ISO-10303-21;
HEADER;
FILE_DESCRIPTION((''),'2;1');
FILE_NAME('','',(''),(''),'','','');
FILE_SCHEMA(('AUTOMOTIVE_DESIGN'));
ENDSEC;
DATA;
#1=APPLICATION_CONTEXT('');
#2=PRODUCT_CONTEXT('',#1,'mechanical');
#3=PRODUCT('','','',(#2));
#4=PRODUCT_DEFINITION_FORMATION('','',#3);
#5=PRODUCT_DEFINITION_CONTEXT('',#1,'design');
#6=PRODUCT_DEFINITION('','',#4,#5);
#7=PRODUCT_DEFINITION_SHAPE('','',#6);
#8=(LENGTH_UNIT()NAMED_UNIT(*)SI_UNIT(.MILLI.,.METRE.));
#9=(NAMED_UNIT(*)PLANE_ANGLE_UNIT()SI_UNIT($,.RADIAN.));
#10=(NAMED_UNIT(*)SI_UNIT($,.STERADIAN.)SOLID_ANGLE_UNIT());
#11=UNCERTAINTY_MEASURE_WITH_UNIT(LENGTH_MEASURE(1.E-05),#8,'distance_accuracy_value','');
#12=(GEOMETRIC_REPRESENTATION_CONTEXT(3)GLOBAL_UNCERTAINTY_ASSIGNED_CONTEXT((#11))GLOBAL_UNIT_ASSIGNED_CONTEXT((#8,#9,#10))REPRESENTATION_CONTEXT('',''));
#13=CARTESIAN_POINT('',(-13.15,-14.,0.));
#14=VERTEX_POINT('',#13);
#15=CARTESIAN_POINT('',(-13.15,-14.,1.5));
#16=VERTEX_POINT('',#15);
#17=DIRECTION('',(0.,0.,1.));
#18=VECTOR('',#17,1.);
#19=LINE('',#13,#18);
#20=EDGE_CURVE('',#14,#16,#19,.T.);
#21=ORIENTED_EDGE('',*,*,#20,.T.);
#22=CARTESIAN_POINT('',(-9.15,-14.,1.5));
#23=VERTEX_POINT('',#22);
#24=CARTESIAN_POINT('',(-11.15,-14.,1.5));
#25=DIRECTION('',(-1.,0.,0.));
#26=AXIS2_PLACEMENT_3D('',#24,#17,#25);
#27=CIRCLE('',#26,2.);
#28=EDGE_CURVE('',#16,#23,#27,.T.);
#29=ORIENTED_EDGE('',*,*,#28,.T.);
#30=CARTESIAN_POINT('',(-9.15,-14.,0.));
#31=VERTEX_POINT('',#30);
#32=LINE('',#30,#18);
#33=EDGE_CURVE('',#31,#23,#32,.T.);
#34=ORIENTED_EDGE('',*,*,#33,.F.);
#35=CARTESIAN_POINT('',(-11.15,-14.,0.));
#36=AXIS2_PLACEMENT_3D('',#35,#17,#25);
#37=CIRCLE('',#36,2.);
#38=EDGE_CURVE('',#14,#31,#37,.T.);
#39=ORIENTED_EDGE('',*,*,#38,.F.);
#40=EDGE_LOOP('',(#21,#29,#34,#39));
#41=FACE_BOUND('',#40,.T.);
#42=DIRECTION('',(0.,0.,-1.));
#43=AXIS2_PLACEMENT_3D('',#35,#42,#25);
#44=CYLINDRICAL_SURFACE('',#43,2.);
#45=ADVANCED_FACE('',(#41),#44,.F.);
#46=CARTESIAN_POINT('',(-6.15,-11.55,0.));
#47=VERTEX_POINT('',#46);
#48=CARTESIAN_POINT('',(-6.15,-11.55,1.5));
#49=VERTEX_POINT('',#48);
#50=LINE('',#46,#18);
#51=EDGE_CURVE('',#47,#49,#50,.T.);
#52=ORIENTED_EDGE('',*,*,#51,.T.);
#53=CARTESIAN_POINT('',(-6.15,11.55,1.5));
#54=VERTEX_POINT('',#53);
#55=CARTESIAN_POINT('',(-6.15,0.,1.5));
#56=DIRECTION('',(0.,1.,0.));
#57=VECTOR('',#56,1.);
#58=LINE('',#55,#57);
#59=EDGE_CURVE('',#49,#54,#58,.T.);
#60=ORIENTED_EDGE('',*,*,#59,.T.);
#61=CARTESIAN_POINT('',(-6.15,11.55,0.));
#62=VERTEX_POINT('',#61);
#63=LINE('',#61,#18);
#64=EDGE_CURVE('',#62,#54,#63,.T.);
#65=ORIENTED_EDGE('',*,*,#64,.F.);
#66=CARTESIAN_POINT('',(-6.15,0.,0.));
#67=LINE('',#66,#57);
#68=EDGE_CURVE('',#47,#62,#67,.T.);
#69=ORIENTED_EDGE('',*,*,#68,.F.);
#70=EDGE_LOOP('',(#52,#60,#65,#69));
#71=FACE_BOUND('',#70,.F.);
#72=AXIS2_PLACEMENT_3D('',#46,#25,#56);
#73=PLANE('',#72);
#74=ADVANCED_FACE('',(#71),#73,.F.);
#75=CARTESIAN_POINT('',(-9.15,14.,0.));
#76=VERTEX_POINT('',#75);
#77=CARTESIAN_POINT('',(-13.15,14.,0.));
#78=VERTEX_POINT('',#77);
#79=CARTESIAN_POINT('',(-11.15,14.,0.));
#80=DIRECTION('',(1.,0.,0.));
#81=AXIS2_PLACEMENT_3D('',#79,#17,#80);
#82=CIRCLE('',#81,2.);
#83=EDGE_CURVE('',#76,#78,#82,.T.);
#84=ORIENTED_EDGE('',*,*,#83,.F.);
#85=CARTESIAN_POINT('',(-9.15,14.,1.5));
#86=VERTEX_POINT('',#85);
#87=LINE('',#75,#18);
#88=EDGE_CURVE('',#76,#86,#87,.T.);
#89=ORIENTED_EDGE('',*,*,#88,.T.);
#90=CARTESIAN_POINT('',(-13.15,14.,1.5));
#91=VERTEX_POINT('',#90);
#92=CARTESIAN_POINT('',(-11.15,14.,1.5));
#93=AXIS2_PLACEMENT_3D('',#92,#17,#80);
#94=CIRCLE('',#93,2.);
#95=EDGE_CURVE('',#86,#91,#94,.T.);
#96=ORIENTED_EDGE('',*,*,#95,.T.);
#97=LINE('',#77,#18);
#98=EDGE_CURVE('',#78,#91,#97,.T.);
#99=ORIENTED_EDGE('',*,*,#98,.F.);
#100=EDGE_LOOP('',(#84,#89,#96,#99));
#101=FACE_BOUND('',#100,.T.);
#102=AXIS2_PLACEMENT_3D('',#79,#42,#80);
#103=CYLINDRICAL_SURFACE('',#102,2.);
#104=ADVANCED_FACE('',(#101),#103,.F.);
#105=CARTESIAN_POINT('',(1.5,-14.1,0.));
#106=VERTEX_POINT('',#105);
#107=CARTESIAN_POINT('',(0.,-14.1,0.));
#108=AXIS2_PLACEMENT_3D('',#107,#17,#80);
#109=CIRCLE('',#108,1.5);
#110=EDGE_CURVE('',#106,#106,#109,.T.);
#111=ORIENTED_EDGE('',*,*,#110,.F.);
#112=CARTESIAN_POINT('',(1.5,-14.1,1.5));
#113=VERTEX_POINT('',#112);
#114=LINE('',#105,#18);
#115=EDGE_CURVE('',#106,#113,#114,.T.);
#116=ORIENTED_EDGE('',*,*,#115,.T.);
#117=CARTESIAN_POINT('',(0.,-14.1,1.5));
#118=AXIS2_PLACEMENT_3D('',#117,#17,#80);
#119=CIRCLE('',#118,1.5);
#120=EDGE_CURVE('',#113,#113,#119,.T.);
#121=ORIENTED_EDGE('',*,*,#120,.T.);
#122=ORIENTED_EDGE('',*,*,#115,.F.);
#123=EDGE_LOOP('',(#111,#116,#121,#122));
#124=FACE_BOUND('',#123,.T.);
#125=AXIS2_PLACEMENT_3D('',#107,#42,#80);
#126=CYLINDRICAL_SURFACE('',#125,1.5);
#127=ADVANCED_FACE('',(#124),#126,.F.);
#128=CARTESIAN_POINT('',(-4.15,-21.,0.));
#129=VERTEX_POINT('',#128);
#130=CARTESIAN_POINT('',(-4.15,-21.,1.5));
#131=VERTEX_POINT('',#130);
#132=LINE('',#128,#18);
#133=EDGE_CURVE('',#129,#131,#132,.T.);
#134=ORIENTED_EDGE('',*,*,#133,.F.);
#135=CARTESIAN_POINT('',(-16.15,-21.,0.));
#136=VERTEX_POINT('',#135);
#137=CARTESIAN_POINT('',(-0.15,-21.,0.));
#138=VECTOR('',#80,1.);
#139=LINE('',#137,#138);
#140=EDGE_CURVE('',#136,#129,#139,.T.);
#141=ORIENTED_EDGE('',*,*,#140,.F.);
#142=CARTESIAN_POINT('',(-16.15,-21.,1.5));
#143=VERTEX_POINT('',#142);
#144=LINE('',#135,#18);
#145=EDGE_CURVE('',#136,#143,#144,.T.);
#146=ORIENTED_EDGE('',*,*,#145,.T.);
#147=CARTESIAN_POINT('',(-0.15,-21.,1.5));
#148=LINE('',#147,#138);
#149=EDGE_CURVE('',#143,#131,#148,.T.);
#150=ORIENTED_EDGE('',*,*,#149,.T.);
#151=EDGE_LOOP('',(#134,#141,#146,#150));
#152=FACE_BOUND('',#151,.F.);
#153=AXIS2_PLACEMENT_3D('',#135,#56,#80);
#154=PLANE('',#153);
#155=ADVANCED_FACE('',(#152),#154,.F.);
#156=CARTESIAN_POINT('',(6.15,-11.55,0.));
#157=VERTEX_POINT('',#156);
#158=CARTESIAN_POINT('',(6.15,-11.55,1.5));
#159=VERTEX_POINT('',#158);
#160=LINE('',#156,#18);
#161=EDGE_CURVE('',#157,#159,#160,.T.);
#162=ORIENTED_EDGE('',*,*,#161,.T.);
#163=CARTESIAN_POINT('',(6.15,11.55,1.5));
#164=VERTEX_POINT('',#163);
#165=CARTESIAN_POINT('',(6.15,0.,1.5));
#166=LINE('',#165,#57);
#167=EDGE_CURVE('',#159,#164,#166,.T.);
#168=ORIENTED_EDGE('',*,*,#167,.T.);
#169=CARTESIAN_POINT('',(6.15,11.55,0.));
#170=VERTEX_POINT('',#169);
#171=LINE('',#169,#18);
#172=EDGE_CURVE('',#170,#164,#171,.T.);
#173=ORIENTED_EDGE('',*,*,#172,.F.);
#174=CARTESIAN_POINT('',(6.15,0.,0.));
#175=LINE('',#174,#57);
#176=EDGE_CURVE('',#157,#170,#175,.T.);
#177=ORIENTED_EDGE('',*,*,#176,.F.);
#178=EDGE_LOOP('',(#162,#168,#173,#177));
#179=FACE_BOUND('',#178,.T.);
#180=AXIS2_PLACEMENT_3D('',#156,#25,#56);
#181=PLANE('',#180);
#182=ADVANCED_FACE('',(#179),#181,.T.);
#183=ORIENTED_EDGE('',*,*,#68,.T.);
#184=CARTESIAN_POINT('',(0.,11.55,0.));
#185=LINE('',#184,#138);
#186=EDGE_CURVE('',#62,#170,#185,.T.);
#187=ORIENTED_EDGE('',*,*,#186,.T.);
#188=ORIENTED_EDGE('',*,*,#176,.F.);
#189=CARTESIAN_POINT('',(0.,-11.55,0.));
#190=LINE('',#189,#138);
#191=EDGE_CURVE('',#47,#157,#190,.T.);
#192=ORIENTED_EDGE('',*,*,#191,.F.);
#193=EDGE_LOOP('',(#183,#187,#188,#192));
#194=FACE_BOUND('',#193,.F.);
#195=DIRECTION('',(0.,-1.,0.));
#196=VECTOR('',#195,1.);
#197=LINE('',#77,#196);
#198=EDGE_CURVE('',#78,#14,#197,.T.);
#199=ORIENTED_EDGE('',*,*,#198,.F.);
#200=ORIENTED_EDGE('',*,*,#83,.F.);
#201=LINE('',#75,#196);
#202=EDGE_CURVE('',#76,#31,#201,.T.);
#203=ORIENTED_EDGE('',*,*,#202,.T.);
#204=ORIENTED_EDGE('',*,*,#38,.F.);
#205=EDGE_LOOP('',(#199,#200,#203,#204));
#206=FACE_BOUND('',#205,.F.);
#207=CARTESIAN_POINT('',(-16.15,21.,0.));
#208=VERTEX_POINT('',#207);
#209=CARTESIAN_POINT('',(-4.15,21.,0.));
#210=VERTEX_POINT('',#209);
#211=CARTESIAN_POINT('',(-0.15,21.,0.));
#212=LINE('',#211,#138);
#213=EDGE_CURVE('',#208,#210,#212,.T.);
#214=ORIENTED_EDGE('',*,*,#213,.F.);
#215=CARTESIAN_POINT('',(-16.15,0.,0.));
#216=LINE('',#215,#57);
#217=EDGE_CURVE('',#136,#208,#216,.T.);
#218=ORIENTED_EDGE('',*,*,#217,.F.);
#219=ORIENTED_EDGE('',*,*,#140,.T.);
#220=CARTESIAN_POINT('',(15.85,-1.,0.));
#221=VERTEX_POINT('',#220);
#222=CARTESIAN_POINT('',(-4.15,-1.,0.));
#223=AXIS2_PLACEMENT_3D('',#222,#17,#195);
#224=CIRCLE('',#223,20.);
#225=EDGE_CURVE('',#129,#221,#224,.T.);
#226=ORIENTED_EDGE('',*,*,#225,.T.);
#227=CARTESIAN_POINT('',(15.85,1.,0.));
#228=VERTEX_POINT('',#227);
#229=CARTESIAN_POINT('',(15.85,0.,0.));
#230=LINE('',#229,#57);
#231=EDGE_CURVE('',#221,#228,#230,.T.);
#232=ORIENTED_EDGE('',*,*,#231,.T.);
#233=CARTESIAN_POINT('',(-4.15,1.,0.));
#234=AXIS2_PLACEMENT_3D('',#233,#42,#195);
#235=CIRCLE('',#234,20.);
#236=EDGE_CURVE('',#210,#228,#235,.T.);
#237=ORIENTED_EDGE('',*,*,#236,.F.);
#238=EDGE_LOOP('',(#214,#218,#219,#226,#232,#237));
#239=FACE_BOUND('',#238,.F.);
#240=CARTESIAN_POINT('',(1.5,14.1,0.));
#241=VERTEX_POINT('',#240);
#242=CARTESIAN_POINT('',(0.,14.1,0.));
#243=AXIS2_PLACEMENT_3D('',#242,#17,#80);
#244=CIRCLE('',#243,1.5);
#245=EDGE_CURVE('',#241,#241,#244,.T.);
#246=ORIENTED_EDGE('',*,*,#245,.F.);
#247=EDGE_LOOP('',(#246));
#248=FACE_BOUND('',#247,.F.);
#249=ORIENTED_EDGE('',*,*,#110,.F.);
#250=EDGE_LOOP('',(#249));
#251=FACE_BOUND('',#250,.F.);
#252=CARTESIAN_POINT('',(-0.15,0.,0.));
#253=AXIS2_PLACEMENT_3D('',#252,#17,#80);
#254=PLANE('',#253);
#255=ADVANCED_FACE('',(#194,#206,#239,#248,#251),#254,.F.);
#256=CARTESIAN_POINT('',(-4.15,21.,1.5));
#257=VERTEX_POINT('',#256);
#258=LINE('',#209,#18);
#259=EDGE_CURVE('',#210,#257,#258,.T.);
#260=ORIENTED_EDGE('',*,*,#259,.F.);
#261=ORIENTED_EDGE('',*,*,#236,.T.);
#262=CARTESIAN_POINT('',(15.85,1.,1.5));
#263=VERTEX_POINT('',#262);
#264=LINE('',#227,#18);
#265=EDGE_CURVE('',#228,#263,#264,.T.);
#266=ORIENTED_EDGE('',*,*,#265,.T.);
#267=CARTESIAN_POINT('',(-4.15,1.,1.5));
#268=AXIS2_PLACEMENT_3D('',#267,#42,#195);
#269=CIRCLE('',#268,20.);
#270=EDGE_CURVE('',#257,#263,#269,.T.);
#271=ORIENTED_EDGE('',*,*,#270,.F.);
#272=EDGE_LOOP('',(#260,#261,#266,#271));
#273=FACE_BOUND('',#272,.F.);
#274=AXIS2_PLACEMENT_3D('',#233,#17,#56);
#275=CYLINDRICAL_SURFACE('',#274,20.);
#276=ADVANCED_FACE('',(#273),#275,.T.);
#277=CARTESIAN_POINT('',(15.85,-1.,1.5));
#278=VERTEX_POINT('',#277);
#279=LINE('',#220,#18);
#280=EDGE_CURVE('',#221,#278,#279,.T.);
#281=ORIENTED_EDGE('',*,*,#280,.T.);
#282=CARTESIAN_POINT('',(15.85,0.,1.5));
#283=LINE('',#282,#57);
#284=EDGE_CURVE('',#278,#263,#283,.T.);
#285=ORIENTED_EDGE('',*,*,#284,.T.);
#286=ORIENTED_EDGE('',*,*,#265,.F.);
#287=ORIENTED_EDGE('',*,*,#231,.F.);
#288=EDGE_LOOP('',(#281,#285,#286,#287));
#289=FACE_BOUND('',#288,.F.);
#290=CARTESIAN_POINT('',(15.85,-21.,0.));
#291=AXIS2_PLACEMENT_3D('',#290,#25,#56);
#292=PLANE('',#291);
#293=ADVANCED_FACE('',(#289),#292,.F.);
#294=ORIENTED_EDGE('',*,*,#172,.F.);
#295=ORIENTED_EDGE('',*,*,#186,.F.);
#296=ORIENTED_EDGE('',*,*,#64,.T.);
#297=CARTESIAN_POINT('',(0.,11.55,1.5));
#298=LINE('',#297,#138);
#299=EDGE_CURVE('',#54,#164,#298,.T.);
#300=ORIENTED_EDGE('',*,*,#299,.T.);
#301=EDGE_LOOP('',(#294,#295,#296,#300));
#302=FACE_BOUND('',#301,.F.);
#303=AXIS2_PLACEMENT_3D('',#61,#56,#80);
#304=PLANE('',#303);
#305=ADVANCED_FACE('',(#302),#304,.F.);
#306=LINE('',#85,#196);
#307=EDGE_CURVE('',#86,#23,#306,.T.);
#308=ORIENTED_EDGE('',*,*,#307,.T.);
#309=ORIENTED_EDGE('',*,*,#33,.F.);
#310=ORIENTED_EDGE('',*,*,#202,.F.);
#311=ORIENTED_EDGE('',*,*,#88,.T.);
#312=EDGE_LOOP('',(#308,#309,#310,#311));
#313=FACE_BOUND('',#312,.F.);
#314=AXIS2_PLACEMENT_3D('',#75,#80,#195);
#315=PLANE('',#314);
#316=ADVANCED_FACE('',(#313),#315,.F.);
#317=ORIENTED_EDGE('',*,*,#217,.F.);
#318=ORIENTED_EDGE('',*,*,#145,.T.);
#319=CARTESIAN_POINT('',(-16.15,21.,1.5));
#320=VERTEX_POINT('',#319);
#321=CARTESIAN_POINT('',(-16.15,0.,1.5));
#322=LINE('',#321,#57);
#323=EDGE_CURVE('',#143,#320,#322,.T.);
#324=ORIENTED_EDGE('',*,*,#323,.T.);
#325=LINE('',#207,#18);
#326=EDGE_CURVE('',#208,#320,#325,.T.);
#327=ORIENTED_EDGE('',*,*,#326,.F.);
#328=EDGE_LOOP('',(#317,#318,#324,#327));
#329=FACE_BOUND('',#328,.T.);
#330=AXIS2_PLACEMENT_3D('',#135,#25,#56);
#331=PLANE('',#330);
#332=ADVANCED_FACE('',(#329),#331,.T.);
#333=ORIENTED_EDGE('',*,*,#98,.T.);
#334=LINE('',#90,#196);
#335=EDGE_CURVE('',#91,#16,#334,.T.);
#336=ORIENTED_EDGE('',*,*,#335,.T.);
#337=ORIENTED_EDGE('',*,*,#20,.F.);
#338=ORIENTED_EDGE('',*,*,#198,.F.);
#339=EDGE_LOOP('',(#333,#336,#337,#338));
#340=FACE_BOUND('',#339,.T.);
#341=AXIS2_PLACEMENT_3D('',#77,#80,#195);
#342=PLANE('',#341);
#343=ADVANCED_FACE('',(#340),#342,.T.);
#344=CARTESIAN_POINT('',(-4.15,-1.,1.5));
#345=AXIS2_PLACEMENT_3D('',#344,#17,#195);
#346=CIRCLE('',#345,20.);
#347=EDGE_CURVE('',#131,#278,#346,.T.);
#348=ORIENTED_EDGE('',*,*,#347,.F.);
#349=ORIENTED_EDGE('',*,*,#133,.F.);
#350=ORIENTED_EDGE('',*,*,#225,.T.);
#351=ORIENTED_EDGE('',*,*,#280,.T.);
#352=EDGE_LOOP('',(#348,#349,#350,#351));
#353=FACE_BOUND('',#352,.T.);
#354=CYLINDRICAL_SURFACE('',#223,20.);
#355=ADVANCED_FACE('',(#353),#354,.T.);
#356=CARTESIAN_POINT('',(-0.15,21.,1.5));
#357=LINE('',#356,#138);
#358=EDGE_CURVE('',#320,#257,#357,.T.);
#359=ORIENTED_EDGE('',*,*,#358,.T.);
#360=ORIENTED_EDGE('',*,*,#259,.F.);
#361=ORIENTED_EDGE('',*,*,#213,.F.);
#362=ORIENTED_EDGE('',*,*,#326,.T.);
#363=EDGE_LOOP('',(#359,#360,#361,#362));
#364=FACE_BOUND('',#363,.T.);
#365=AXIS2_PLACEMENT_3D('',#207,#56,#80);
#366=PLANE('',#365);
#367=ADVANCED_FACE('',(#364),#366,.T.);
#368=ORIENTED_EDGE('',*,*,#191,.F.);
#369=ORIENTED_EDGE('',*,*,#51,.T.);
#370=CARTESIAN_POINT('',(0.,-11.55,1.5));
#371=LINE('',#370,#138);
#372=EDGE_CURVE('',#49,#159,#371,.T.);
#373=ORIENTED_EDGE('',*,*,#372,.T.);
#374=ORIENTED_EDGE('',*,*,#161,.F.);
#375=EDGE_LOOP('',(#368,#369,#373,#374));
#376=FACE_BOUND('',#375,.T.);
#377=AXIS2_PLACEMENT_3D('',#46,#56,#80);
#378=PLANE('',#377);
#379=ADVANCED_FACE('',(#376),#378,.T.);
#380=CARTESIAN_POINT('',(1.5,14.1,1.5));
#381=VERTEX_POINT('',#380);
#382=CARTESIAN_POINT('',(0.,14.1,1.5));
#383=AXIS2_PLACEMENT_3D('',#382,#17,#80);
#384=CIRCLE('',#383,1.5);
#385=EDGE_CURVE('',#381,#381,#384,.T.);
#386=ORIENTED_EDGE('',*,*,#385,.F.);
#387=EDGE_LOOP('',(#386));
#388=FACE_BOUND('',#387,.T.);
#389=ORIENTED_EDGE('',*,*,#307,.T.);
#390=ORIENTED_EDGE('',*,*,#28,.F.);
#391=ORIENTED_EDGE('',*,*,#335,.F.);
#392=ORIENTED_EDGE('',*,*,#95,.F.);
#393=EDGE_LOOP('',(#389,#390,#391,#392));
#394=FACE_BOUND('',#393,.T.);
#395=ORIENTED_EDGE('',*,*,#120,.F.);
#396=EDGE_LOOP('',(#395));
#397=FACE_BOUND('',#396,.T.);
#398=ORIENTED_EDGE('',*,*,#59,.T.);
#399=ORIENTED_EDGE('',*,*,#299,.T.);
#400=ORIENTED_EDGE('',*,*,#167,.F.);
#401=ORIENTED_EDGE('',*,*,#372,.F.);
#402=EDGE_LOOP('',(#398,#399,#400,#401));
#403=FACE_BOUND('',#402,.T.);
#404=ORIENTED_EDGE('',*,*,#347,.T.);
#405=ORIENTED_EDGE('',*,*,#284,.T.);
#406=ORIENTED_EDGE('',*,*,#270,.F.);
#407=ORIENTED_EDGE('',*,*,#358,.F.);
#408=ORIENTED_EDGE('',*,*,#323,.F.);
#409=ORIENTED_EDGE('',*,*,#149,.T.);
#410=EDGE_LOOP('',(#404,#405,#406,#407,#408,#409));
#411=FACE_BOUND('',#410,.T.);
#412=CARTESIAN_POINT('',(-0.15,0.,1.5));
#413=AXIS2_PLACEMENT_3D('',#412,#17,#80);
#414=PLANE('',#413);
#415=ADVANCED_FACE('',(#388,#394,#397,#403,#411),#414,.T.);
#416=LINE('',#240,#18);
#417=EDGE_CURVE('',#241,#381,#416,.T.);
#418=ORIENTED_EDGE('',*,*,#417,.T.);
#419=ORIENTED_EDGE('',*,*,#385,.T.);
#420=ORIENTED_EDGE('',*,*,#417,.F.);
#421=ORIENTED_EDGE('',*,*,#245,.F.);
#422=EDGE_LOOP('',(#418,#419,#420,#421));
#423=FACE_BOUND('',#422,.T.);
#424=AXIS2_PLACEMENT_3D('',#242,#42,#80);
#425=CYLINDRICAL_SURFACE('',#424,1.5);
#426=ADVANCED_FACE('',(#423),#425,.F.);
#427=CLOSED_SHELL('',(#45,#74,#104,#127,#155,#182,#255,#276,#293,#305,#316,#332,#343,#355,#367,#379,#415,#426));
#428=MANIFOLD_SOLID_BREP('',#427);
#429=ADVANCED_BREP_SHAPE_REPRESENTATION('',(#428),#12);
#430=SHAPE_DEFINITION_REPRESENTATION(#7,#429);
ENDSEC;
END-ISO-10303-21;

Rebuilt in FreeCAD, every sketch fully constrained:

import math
import FreeCAD as App
import Part
import Sketcher

V = App.Vector


def edges_at(feature, points):
    """Names of the edges that pass closest to the given points."""
    edges = feature.Shape.Edges
    near = lambda p: min(range(len(edges)), key=lambda i: edges[i].distToShape(Part.Vertex(*p))[0])
    return sorted({f"Edge{near(p) + 1}" for p in points})


def add_polygon(sketch, points):
    """Adds a closed chain of lines whose ends are joined by coincident constraints."""
    first, n = sketch.GeometryCount, len(points)
    for a, b in zip(points, points[1:] + points[:1]):
        sketch.addGeometry(Part.LineSegment(App.Vector(*a, 0), App.Vector(*b, 0)), False)
    for i in range(n):
        sketch.addConstraint(Sketcher.Constraint("Coincident", first + i, 2, first + (i + 1) % n, 1))

doc = App.newDocument("Part")
body = doc.addObject("PartDesign::Body", "Body")

sketch1 = body.newObject("Sketcher::SketchObject", "Sketch")
sketch1.AttachmentSupport = (doc.getObject("XY_Plane"), [""])
sketch1.MapMode = "FlatFace"
add_polygon(sketch1, [(-16.1, 21), (-16.1, -21), (15.8, -21), (15.8, 21)])
sketch1.addGeometry(Part.Circle(V(0, -14.1, 0), V(0, 0, 1), 1.5), False)
sketch1.addGeometry(Part.ArcOfCircle(Part.Circle(V(-11.2, 14, 0), V(0, 0, 1), 2), math.radians(0), math.radians(180)), False)
sketch1.addGeometry(Part.LineSegment(V(-9.2, 14, 0), V(-9.2, -14, 0)), False)
sketch1.addGeometry(Part.ArcOfCircle(Part.Circle(V(-11.2, -14, 0), V(0, 0, 1), 2), math.radians(180), math.radians(360)), False)
sketch1.addGeometry(Part.LineSegment(V(-13.2, -14, 0), V(-13.2, 14, 0)), False)
add_polygon(sketch1, [(6.2, -11.6), (-6.2, -11.6), (-6.2, 11.6), (6.2, 11.6)])
sketch1.addGeometry(Part.Circle(V(0, 14.1, 0), V(0, 0, 1), 1.5), False)
sketch1.addConstraint([
    Sketcher.Constraint("Tangent", 5, 1, 6, 1),
    Sketcher.Constraint("Tangent", 6, 2, 7, 2),
    Sketcher.Constraint("Tangent", 7, 1, 8, 1),
    Sketcher.Constraint("Tangent", 8, 2, 5, 2),
    Sketcher.Constraint("Vertical", 0),
    Sketcher.Constraint("Horizontal", 1),
    Sketcher.Constraint("Vertical", 2),
    Sketcher.Constraint("Horizontal", 3),
    Sketcher.Constraint("Vertical", 6),
    Sketcher.Constraint("Vertical", 8),
    Sketcher.Constraint("Horizontal", 9),
    Sketcher.Constraint("Vertical", 10),
    Sketcher.Constraint("Horizontal", 11),
    Sketcher.Constraint("Vertical", 12),
    Sketcher.Constraint("Equal", 4, 13),
    Sketcher.Constraint("Symmetric", 4, 3, 13, 3, -1, 1),
    Sketcher.Constraint("Symmetric", 9, 2, 11, 2, -1, 1),
    Sketcher.Constraint("PointOnObject", 4, 3, -2),
    Sketcher.Constraint("Diameter", 4, 3.0),
    Sketcher.Constraint("Radius", 5, 2.0),
    Sketcher.Constraint("DistanceX", 1, 1, 1, 2, 32.0),
    Sketcher.Constraint("DistanceY", 0, 2, 0, 1, 42.0),
    Sketcher.Constraint("DistanceY", 6, 2, 6, 1, 28.0),
    Sketcher.Constraint("DistanceX", 9, 2, 9, 1, 12.3),
    Sketcher.Constraint("DistanceY", 10, 1, 10, 2, 23.1),
    Sketcher.Constraint("DistanceY", -1, 1, 5, 3, 14.0),
    Sketcher.Constraint("DistanceY", 0, 2, -1, 1, 21.0),
    Sketcher.Constraint("DistanceX", 0, 2, 7, 3, 5.0),
    Sketcher.Constraint("DistanceX", 6, 2, 9, 2, 3.0),
    Sketcher.Constraint("DistanceY", 4, 3, -1, 1, 14.1),
])
pad1 = body.newObject("PartDesign::Pad", "Pad")
pad1.Profile = sketch1
pad1.Length = 1.5
doc.recompute()

fillet = body.newObject("PartDesign::Fillet", "Fillet")
fillet.Base = (pad1, edges_at(pad1, [(15.85, 21, 0.75), (15.85, -21, 0.75)]))
fillet.Radius = 20

doc.recompute()
